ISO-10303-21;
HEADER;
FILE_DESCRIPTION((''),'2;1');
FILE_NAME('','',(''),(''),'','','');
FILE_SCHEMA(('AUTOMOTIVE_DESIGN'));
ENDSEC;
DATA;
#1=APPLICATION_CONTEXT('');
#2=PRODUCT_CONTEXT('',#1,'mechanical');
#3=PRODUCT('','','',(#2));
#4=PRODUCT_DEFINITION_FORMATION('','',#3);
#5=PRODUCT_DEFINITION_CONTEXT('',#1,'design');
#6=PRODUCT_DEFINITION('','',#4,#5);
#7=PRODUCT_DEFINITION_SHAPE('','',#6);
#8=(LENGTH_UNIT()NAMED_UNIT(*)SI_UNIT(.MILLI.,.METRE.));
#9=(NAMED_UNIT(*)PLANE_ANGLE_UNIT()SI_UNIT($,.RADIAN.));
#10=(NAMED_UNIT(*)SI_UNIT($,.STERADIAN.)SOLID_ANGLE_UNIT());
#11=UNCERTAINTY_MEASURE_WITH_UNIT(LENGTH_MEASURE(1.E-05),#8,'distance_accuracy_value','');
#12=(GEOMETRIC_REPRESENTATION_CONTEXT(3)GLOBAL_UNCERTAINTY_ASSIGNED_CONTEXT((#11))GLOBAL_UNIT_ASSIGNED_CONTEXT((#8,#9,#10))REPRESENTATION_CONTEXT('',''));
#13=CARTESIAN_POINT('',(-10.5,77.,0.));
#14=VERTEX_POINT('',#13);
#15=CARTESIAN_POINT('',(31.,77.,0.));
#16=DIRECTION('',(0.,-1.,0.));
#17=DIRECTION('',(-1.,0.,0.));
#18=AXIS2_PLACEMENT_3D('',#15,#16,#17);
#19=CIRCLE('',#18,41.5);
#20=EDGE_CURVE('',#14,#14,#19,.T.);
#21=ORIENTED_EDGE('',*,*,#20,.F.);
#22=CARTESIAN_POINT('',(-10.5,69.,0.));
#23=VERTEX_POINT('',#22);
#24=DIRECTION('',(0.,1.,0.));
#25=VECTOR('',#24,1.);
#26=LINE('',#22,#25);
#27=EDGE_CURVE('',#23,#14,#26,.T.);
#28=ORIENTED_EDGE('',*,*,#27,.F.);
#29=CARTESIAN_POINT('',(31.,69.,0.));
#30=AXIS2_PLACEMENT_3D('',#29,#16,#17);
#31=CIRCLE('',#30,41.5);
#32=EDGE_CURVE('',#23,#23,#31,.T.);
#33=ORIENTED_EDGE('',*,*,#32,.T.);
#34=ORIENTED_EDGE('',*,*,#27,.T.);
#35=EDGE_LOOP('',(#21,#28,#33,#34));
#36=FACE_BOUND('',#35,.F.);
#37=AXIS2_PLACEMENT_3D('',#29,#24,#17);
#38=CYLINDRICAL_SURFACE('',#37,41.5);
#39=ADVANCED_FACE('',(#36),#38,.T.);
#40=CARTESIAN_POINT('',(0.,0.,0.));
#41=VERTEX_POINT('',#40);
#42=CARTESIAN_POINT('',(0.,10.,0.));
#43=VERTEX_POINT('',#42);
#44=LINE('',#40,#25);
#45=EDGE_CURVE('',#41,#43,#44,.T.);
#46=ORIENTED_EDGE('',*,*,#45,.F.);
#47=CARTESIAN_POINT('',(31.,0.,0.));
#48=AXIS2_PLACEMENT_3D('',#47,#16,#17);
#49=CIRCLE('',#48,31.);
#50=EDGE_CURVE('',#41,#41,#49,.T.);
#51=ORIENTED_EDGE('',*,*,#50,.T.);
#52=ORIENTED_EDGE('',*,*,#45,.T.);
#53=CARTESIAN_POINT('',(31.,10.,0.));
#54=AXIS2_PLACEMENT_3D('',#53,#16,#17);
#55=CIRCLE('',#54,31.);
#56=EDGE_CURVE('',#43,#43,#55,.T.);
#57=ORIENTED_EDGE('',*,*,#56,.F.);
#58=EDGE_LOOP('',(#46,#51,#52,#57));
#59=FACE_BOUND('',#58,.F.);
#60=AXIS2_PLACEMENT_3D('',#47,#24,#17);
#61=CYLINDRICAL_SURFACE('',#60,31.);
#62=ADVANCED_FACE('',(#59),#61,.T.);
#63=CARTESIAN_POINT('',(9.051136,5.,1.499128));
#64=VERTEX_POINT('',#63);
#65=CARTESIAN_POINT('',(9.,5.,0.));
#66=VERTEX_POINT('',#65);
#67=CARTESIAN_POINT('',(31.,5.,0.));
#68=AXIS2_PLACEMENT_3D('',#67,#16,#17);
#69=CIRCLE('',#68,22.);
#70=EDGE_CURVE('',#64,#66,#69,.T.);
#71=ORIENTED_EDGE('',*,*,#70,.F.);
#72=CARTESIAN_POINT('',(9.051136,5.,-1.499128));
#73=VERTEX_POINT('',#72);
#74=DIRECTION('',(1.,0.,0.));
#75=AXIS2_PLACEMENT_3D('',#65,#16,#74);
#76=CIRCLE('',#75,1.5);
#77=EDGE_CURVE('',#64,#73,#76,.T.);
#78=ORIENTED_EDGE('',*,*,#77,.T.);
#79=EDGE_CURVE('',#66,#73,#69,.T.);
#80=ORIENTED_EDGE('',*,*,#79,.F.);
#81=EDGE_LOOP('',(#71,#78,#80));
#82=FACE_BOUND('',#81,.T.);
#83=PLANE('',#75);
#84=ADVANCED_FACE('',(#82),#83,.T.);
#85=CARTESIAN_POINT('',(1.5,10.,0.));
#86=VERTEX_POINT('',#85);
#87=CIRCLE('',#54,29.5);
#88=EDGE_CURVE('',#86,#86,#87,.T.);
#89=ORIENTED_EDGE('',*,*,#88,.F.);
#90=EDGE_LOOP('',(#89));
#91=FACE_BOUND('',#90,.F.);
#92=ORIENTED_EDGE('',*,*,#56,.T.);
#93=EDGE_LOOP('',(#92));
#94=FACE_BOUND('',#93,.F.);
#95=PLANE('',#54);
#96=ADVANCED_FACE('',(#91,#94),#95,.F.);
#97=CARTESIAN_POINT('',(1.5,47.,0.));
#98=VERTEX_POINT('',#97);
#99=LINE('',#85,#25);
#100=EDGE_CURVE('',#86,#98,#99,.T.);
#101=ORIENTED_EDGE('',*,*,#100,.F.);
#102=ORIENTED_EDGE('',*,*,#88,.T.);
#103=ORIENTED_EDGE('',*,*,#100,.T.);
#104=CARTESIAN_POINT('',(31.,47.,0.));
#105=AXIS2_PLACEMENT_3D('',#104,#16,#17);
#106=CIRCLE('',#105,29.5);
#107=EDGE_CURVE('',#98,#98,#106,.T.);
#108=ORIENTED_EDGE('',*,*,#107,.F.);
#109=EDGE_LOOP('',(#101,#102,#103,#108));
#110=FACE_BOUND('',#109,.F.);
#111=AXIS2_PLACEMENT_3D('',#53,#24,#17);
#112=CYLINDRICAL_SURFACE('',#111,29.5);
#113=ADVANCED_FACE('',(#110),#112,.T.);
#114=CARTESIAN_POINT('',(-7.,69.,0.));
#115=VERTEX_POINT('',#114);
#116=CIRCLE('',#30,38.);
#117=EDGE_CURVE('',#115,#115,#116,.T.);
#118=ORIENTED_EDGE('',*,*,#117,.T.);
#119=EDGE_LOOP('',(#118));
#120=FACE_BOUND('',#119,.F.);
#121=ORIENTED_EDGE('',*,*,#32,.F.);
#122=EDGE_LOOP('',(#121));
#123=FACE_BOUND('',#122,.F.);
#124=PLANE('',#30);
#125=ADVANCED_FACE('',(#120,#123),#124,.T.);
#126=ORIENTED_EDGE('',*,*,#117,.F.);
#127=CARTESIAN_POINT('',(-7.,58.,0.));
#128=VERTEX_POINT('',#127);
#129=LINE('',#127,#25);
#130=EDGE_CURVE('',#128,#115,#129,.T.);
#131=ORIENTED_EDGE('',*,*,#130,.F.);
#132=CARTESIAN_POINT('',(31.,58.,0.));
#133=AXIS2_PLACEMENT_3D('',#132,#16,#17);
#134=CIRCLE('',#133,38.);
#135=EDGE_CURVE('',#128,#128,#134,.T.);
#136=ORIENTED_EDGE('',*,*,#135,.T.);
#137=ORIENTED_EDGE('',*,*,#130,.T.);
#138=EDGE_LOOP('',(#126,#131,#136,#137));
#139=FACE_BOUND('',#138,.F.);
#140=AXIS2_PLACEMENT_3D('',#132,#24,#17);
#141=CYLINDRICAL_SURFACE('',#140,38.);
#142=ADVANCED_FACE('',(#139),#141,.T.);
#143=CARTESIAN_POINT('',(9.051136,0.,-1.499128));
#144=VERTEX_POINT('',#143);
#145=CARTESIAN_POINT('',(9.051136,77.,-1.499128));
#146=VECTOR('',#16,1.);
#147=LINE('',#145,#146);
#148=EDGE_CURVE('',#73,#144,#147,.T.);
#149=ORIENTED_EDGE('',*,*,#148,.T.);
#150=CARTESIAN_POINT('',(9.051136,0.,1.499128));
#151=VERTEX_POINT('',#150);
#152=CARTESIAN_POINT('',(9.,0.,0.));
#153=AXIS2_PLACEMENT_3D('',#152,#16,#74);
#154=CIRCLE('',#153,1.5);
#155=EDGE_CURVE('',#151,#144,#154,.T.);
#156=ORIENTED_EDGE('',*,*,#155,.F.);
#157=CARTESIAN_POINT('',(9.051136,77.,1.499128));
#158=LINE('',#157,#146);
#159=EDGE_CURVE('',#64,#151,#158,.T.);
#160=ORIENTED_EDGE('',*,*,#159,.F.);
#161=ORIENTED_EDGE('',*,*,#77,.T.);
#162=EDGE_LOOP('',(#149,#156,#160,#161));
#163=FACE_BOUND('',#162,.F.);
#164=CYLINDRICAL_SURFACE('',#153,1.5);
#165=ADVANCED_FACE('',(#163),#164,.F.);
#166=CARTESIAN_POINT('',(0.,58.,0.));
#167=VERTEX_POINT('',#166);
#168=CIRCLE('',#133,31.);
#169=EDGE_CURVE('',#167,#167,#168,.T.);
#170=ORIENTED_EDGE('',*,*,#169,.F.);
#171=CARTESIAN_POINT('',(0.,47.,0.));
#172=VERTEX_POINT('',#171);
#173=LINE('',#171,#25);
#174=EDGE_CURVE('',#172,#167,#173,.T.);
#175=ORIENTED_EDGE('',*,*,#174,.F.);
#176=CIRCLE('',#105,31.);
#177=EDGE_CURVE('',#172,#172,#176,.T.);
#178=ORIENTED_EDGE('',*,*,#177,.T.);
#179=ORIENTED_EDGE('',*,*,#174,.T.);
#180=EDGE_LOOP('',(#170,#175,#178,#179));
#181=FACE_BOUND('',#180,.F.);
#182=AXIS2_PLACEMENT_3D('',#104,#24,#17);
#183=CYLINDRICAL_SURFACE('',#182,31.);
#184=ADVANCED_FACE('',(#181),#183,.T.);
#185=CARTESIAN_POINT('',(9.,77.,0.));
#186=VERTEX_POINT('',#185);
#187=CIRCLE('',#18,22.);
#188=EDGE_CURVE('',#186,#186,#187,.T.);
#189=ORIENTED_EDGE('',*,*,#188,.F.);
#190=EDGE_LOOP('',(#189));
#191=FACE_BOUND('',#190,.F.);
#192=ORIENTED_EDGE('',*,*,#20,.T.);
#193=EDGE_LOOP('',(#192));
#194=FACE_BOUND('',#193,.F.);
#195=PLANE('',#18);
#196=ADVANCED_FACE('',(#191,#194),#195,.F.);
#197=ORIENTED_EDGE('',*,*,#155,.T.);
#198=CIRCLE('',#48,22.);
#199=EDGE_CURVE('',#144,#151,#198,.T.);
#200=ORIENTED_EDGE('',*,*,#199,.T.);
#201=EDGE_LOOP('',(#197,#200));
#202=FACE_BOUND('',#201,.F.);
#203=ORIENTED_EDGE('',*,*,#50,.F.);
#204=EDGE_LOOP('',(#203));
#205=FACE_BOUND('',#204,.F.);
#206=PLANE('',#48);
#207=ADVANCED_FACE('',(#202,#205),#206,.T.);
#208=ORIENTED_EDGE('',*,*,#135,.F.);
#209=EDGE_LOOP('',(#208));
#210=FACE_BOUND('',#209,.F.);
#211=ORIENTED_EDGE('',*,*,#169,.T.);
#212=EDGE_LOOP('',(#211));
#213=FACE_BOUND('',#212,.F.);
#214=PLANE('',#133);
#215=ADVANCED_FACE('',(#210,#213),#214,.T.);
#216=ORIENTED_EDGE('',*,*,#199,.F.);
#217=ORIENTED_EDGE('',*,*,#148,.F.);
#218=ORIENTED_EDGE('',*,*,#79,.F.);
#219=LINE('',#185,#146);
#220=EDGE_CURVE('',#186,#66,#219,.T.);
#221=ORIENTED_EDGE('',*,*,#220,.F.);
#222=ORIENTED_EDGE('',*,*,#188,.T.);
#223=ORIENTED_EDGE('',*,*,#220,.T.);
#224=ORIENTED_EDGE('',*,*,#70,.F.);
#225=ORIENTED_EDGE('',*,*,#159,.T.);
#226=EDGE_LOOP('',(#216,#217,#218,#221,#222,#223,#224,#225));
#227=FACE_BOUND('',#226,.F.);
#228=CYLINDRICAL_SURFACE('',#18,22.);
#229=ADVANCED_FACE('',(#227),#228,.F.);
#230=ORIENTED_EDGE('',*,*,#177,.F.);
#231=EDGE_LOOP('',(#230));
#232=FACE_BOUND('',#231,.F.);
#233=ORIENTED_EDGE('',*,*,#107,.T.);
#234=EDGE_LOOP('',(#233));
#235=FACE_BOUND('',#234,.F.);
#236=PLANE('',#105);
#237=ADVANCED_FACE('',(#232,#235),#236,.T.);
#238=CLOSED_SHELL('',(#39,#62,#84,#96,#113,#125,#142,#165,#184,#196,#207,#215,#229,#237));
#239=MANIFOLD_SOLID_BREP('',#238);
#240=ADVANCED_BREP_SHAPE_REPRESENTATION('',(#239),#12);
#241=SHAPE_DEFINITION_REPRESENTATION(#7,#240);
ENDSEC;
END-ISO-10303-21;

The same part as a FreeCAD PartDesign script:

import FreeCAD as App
import Part
import Sketcher
Q = App.Units.Quantity


def add_polygon(sketch, points):
    """Adds a closed chain of lines whose ends are joined by coincident constraints."""
    first, n = sketch.GeometryCount, len(points)
    for a, b in zip(points, points[1:] + points[:1]):
        sketch.addGeometry(Part.LineSegment(App.Vector(*a, 0), App.Vector(*b, 0)), False)
    for i in range(n):
        sketch.addConstraint(Sketcher.Constraint("Coincident", first + i, 2, first + (i + 1) % n, 1))

doc = App.newDocument("Part")
body = doc.addObject("PartDesign::Body", "Body")

# Sketch on XY plane
sketch1 = body.newObject("Sketcher::SketchObject", "Sketch")
sketch1.AttachmentSupport = (doc.getObject("XY_Plane"), [""])
sketch1.MapMode = "FlatFace"
add_polygon(sketch1, [(0, 0), (9, 0), (9, 77), (-10.5, 77), (-10.5, 69), (-7, 69), (-7, 58), (0, 58), (0, 47), (1.5, 47), (1.5, 10), (0, 10)])  # lines 0-11
sketch1.addGeometry(Part.LineSegment(App.Vector(31, 77, 0), App.Vector(31, 0, 0)), True)  # axis
sketch1.addConstraint([
    Sketcher.Constraint("Horizontal", 0),
    Sketcher.Constraint("Vertical", 1),
    Sketcher.Constraint("Horizontal", 2),
    Sketcher.Constraint("Vertical", 3),
    Sketcher.Constraint("Horizontal", 4),
    Sketcher.Constraint("Vertical", 5),
    Sketcher.Constraint("Horizontal", 6),
    Sketcher.Constraint("Vertical", 7),
    Sketcher.Constraint("Horizontal", 8),
    Sketcher.Constraint("Vertical", 9),
    Sketcher.Constraint("Horizontal", 10),
    Sketcher.Constraint("Vertical", 11),
    Sketcher.Constraint("Vertical", 12),
    Sketcher.Constraint("Coincident", 11, 2, -1, 1),
    Sketcher.Constraint("PointOnObject", 6, 2, -2),
    Sketcher.Constraint("PointOnObject", 12, 2, -1),
    Sketcher.Constraint("Horizontal", 2, 2, 12, 1),
    Sketcher.Constraint("Equal", 5, 7),
    Sketcher.Constraint("DistanceX", 0, 1, 0, 2, Q("9 mm")),
    Sketcher.Constraint("DistanceX", 6, 1, 6, 2, Q("7 mm")),
    Sketcher.Constraint("DistanceY", 1, 1, 1, 2, Q("77 mm")),
    Sketcher.Constraint("DistanceY", 3, 2, 3, 1, Q("8 mm")),
    Sketcher.Constraint("DistanceY", 5, 2, 5, 1, Q("11 mm")),
    Sketcher.Constraint("DistanceY", 9, 2, 9, 1, Q("37 mm")),
    Sketcher.Constraint("DistanceX", 2, 2, 2, 1, Q("19.5 mm")),
    Sketcher.Constraint("DistanceX", 8, 1, 8, 2, Q("1.5 mm")),
    Sketcher.Constraint("DistanceX", -1, 1, 12, 1, Q("31 mm")),
])
revolution = body.newObject("PartDesign::Revolution", "Revolution")
revolution.Profile = sketch1
revolution.ReferenceAxis = (sketch1, ["Axis0"])
revolution.Angle = 360

# Sketch on XZ plane
sketch2 = body.newObject("Sketcher::SketchObject", "Sketch001")
sketch2.AttachmentSupport = (doc.getObject("XZ_Plane"), [""])
sketch2.MapMode = "FlatFace"
sketch2.addGeometry(Part.Circle(App.Vector(9, 0, 0), App.Vector(0, 0, 1), 1.5), False)
sketch2.addConstraint([
    Sketcher.Constraint("PointOnObject", 0, 3, -1),
    Sketcher.Constraint("Diameter", 0, Q("3 mm")),
    Sketcher.Constraint("DistanceX", -1, 1, 0, 3, Q("9 mm")),
])
pocket1 = body.newObject("PartDesign::Pocket", "Pocket")
pocket1.Profile = sketch2
pocket1.Length = 5

doc.recompute()
